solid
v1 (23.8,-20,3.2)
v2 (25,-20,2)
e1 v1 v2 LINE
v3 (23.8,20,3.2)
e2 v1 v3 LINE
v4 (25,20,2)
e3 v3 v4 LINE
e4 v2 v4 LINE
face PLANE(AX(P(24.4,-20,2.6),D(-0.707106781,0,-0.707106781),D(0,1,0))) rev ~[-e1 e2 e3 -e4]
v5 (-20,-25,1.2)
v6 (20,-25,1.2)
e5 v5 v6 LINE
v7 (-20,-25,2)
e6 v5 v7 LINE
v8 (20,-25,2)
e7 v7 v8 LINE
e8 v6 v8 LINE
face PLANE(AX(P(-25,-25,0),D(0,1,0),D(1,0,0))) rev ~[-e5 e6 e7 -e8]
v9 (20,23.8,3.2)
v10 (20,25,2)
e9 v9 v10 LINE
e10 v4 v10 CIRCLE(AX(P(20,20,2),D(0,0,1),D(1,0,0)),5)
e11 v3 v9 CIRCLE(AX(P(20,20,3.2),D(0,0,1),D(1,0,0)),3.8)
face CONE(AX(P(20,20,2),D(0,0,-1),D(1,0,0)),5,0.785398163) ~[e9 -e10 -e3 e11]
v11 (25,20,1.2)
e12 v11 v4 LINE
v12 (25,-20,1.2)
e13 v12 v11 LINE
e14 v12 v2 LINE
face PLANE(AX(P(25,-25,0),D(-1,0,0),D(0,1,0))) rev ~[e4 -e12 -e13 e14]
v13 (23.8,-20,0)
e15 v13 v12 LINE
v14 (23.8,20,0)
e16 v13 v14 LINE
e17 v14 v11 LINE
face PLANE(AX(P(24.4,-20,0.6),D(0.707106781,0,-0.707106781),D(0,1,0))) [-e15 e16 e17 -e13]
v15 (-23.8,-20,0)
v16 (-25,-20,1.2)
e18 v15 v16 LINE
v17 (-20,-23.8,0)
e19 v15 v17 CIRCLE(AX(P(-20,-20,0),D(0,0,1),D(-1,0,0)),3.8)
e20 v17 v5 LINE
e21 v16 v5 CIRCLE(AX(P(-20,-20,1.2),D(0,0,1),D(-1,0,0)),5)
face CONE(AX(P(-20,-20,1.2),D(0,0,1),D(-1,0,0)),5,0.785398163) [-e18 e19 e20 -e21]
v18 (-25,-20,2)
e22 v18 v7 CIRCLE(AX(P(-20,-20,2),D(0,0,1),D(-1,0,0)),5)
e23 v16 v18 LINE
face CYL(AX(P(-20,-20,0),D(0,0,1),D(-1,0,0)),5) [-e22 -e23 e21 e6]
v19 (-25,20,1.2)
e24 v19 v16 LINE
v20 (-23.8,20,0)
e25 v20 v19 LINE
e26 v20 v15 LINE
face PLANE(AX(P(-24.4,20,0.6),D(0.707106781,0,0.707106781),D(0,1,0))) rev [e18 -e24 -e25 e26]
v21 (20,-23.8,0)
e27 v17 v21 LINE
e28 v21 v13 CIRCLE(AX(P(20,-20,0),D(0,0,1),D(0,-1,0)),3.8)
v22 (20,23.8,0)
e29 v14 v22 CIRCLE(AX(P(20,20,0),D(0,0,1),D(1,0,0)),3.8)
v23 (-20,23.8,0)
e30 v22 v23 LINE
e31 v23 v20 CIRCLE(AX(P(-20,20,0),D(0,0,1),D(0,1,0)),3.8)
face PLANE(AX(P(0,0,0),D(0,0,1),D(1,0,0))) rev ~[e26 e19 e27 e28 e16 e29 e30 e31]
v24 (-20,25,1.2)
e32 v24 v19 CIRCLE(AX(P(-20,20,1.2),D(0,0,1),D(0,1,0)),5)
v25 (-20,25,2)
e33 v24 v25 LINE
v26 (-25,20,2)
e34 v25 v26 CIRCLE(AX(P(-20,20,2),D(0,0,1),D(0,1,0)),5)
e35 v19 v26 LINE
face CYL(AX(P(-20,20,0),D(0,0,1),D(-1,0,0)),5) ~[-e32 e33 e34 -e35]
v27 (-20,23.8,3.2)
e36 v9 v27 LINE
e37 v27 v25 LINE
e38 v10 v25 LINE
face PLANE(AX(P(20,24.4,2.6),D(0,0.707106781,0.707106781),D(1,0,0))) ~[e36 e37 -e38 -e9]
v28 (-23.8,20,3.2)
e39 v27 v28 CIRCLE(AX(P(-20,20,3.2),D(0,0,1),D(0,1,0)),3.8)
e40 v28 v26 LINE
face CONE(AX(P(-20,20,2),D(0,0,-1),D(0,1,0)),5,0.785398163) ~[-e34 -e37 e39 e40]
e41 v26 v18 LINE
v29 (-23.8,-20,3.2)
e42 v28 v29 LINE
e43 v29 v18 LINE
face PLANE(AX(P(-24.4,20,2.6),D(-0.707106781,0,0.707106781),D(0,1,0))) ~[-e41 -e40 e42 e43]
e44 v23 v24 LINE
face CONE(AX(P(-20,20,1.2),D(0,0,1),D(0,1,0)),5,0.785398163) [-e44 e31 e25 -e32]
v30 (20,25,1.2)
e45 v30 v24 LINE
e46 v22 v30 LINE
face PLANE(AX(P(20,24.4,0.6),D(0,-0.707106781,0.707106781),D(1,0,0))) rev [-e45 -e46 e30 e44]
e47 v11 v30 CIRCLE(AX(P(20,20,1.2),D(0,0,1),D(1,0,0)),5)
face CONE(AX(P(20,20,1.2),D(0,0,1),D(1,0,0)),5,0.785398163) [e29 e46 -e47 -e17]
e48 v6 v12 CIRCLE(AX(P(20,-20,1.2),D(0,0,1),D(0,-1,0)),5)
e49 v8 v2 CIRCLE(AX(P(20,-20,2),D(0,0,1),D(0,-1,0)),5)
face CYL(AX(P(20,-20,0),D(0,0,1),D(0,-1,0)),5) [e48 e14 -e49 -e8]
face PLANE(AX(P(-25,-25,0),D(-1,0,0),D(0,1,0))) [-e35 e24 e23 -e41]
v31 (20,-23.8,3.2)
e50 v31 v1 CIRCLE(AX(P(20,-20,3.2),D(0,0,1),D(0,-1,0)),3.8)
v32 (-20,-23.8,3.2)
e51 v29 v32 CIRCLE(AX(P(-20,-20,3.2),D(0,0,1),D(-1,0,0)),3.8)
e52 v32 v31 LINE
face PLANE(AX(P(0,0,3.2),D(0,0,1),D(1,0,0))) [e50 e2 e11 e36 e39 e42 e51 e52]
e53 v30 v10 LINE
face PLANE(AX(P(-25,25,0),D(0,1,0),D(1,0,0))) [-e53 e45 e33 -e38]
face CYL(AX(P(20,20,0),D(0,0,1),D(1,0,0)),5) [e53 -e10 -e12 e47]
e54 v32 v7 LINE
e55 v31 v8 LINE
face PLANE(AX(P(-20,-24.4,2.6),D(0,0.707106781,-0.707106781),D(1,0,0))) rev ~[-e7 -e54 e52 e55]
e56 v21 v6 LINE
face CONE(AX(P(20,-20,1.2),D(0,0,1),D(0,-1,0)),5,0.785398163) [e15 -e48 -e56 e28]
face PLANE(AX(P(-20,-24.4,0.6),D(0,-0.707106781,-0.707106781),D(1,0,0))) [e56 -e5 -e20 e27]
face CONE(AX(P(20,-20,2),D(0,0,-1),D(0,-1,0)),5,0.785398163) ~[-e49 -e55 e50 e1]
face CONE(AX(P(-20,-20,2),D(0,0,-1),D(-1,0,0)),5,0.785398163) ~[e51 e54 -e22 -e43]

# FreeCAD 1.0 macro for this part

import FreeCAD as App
import Part
import Sketcher


def edges_at(feature, points):
    """Names of the edges that pass closest to the given points."""
    edges = feature.Shape.Edges
    near = lambda p: min(range(len(edges)), key=lambda i: edges[i].distToShape(Part.Vertex(*p))[0])
    return sorted({f"Edge{near(p) + 1}" for p in points})

doc = App.newDocument("Part")
body = doc.addObject("PartDesign::Body", "Body")

# Sketch on XY plane
sketch1 = body.newObject("Sketcher::SketchObject", "Sketch")
sketch1.AttachmentSupport = (doc.getObject("XY_Plane"), [""])
sketch1.MapMode = "FlatFace"
sketch1.addGeometry(Part.LineSegment(App.Vector(-25, 25, 0), App.Vector(-25, -25, 0)), False)
sketch1.addGeometry(Part.LineSegment(App.Vector(-25, -25, 0), App.Vector(25, -25, 0)), False)
sketch1.addGeometry(Part.LineSegment(App.Vector(25, -25, 0), App.Vector(25, 25, 0)), False)
sketch1.addGeometry(Part.LineSegment(App.Vector(25, 25, 0), App.Vector(-25, 25, 0)), False)
sketch1.addConstraint(Sketcher.Constraint("Coincident", 0, 2, 1, 1))
sketch1.addConstraint(Sketcher.Constraint("Coincident", 1, 2, 2, 1))
sketch1.addConstraint(Sketcher.Constraint("Coincident", 2, 2, 3, 1))
sketch1.addConstraint(Sketcher.Constraint("Coincident", 3, 2, 0, 1))
sketch1.addConstraint(Sketcher.Constraint("Vertical", 0))
sketch1.addConstraint(Sketcher.Constraint("Horizontal", 1))
sketch1.addConstraint(Sketcher.Constraint("Vertical", 2))
sketch1.addConstraint(Sketcher.Constraint("Horizontal", 3))
sketch1.addConstraint(Sketcher.Constraint("Symmetric", 0, 2, 2, 2, -1, 1))
sketch1.addConstraint(Sketcher.Constraint("Equal", 3, 0))
sketch1.addConstraint(Sketcher.Constraint("DistanceX", 1, 1, 1, 2, 50.0))
pad1 = body.newObject("PartDesign::Pad", "Pad")
pad1.Profile = sketch1
pad1.Length = 3.2
doc.recompute()

fillet = body.newObject("PartDesign::Fillet", "Fillet")
fillet.Base = (pad1, edges_at(pad1, [
    (-25, -25, 1.6),
    (25, -25, 1.6),
    (25, 25, 1.6),
    (-25, 25, 1.6),
]))
fillet.Radius = 5
doc.recompute()

chamfer = body.newObject("PartDesign::Chamfer", "Chamfer")
chamfer.Base = (fillet, edges_at(fillet, [
    (0, -25, 0),
    (-23.536, -23.536, 0),
    (23.536, -23.536, 0),
    (-25, 0, 0),
    (25, 0, 0),
    (-23.536, 23.536, 0),
    (23.536, 23.536, 0),
    (0, 25, 0),
    (0, -25, 3.2),
    (-23.536, -23.536, 3.2),
    (23.536, -23.536, 3.2),
    (-25, 0, 3.2),
    (25, 0, 3.2),
    (-23.536, 23.536, 3.2),
    (23.536, 23.536, 3.2),
    (0, 25, 3.2),
]))
chamfer.Size = 1.2

doc.recompute()
